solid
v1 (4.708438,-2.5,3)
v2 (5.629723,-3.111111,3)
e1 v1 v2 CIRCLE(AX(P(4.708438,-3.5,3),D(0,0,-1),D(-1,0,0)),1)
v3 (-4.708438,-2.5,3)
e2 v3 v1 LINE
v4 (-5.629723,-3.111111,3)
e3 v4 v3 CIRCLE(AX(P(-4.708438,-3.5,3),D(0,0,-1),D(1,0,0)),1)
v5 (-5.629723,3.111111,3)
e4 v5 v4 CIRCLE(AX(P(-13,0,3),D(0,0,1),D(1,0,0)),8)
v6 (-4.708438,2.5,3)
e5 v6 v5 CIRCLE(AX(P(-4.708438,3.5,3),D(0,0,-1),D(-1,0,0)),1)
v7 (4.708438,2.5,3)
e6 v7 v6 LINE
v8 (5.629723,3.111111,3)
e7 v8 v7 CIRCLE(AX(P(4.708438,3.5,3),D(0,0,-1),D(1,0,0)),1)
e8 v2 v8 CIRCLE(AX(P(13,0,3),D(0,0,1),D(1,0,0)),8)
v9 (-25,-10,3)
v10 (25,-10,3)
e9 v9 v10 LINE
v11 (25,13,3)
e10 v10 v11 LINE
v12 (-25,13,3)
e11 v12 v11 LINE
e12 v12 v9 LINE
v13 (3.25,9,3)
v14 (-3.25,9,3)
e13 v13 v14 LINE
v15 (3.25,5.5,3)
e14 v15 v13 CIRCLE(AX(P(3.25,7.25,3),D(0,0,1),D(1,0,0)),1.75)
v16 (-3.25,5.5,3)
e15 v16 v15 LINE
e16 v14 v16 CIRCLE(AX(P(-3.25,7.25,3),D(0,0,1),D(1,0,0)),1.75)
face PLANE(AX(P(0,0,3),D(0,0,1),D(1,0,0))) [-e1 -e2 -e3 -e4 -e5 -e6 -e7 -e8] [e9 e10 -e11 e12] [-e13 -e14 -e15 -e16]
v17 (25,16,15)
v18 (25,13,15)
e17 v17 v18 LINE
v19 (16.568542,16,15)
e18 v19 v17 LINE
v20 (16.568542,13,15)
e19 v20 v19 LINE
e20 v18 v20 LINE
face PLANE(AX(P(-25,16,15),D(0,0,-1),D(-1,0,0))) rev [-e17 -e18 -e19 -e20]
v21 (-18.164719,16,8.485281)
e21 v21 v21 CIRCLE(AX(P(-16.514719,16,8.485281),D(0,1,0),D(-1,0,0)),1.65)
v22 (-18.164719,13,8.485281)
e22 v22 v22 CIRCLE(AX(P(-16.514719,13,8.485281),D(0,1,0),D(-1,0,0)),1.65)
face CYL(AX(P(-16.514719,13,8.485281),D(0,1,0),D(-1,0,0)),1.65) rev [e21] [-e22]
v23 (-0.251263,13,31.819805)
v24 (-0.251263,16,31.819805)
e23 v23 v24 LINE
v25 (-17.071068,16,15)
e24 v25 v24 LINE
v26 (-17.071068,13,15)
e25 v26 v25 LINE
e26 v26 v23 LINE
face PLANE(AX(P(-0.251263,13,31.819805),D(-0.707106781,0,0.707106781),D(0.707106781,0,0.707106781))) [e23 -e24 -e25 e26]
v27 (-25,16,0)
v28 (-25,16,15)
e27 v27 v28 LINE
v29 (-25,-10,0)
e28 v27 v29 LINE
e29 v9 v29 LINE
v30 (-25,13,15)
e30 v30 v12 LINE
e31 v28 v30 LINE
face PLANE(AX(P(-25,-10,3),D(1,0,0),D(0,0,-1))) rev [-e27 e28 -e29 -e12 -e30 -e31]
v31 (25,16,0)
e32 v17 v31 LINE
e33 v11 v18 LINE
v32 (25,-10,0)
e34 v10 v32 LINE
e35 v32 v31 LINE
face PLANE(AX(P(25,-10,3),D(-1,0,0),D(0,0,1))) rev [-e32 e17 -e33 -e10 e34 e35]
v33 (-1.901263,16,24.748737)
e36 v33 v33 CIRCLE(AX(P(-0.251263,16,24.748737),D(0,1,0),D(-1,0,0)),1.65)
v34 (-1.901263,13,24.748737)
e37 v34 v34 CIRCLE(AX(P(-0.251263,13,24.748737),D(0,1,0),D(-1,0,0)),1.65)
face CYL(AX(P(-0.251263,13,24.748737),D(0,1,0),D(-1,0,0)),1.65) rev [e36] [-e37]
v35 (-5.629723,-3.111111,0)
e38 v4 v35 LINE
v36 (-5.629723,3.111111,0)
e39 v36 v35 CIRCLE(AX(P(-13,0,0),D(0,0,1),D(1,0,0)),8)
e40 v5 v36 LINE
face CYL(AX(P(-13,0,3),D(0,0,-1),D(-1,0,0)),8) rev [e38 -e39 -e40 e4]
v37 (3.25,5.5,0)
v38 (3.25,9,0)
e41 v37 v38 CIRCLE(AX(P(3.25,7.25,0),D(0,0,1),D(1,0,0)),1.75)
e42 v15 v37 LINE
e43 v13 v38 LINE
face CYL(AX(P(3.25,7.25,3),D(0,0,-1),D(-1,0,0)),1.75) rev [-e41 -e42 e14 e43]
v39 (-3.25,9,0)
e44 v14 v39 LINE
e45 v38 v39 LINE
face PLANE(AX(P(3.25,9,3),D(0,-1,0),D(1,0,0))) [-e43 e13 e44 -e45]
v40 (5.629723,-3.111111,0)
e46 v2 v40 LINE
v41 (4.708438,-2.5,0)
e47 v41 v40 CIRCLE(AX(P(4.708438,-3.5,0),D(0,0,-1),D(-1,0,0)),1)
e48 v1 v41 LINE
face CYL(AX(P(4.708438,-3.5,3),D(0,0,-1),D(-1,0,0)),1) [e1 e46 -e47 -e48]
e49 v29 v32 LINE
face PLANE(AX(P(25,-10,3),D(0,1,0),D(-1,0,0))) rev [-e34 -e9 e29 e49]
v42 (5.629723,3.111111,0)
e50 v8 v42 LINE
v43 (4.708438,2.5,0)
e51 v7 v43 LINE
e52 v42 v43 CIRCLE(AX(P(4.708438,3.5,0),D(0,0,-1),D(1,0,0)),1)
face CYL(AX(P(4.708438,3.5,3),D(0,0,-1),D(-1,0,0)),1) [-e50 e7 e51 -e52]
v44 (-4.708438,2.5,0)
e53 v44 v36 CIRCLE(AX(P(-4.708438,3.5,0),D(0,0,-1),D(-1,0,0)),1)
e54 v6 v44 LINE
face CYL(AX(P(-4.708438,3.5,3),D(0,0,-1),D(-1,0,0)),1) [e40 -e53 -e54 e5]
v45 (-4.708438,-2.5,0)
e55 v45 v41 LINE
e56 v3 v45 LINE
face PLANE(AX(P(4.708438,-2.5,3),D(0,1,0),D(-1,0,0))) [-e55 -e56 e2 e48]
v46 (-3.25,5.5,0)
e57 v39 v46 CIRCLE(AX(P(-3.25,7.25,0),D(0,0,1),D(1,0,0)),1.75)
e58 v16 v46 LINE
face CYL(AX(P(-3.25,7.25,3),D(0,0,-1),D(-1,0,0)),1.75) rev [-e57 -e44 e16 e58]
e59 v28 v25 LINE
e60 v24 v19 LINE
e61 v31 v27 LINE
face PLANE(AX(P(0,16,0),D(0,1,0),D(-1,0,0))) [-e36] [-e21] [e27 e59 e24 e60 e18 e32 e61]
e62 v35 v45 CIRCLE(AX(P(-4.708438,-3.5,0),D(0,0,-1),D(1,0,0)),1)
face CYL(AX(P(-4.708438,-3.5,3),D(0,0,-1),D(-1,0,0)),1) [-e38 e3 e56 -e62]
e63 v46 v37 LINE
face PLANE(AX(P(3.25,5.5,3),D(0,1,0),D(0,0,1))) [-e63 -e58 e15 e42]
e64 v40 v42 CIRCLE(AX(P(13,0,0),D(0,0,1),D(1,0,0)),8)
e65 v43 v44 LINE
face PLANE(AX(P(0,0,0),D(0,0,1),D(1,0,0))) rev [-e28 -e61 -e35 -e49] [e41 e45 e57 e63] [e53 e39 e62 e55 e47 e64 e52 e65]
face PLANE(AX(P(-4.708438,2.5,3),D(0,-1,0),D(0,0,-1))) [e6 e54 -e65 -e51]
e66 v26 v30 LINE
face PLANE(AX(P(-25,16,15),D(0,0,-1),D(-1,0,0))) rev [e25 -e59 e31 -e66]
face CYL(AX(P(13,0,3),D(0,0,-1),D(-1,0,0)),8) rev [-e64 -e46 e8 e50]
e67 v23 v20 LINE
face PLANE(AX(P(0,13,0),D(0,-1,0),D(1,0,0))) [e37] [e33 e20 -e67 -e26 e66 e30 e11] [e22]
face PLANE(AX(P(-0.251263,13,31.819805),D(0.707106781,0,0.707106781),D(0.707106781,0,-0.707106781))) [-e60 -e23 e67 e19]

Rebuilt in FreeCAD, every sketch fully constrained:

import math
import FreeCAD as App
import Part
import Sketcher
Q = App.Units.Quantity


def add_polygon(sketch, points):
    """Adds a closed chain of lines whose ends are joined by coincident constraints."""
    first, n = sketch.GeometryCount, len(points)
    for a, b in zip(points, points[1:] + points[:1]):
        sketch.addGeometry(Part.LineSegment(App.Vector(*a, 0), App.Vector(*b, 0)), False)
    for i in range(n):
        sketch.addConstraint(Sketcher.Constraint("Coincident", first + i, 2, first + (i + 1) % n, 1))

doc = App.newDocument("Part")
body = doc.addObject("PartDesign::Body", "Body")

# Sketch on XY plane
sketch1 = body.newObject("Sketcher::SketchObject", "Sketch")
sketch1.AttachmentSupport = (doc.getObject("XY_Plane"), [""])
sketch1.MapMode = "FlatFace"
add_polygon(sketch1, [(-25, 10), (-25, -10), (25, -10), (25, 10)])  # lines 0-3
sketch1.addGeometry(Part.ArcOfCircle(Part.Circle(App.Vector(-4.7, 3.5, 0), App.Vector(0, 0, 1), 1), math.radians(-157), math.radians(-90)), False)  # 4
sketch1.addGeometry(Part.LineSegment(App.Vector(-4.7, 2.5, 0), App.Vector(4.7, 2.5, 0)), False)  # 5
sketch1.addGeometry(Part.ArcOfCircle(Part.Circle(App.Vector(4.7, 3.5, 0), App.Vector(0, 0, 1), 1), math.radians(-90), math.radians(-23)), False)  # 6
sketch1.addGeometry(Part.ArcOfCircle(Part.Circle(App.Vector(13, 0, 0), App.Vector(0, 0, 1), 8), math.radians(-157), math.radians(157)), False)  # 7
sketch1.addGeometry(Part.ArcOfCircle(Part.Circle(App.Vector(4.7, -3.5, 0), App.Vector(0, 0, 1), 1), math.radians(23), math.radians(90)), False)  # 8
sketch1.addGeometry(Part.LineSegment(App.Vector(4.7, -2.5, 0), App.Vector(-4.7, -2.5, 0)), False)  # 9
sketch1.addGeometry(Part.ArcOfCircle(Part.Circle(App.Vector(-4.7, -3.5, 0), App.Vector(0, 0, 1), 1), math.radians(90), math.radians(157)), False)  # 10
sketch1.addGeometry(Part.ArcOfCircle(Part.Circle(App.Vector(-13, 0, 0), App.Vector(0, 0, 1), 8), math.radians(23), math.radians(337)), False)  # 11
sketch1.addGeometry(Part.ArcOfCircle(Part.Circle(App.Vector(3.2, 7.2, 0), App.Vector(0, 0, 1), 1.8), math.radians(-90), math.radians(90)), False)  # 12
sketch1.addGeometry(Part.LineSegment(App.Vector(3.2, 5.5, 0), App.Vector(-3.2, 5.5, 0)), False)  # 13
sketch1.addGeometry(Part.ArcOfCircle(Part.Circle(App.Vector(-3.2, 7.2, 0), App.Vector(0, 0, 1), 1.8), math.radians(90), math.radians(270)), False)  # 14
sketch1.addGeometry(Part.LineSegment(App.Vector(-3.2, 9, 0), App.Vector(3.2, 9, 0)), False)  # 15
sketch1.addConstraint(Sketcher.Constraint("Tangent", 4, 2, 5, 1))
sketch1.addConstraint(Sketcher.Constraint("Tangent", 5, 2, 6, 1))
sketch1.addConstraint(Sketcher.Constraint("Tangent", 6, 2, 7, 2))
sketch1.addConstraint(Sketcher.Constraint("Tangent", 7, 1, 8, 1))
sketch1.addConstraint(Sketcher.Constraint("Tangent", 8, 2, 9, 1))
sketch1.addConstraint(Sketcher.Constraint("Tangent", 9, 2, 10, 1))
sketch1.addConstraint(Sketcher.Constraint("Tangent", 10, 2, 11, 2))
sketch1.addConstraint(Sketcher.Constraint("Tangent", 11, 1, 4, 1))
sketch1.addConstraint(Sketcher.Constraint("Tangent", 12, 1, 13, 1))
sketch1.addConstraint(Sketcher.Constraint("Tangent", 13, 2, 14, 2))
sketch1.addConstraint(Sketcher.Constraint("Tangent", 14, 1, 15, 1))
sketch1.addConstraint(Sketcher.Constraint("Tangent", 15, 2, 12, 2))
sketch1.addConstraint(Sketcher.Constraint("Vertical", 0))
sketch1.addConstraint(Sketcher.Constraint("Horizontal", 1))
sketch1.addConstraint(Sketcher.Constraint("Vertical", 2))
sketch1.addConstraint(Sketcher.Constraint("Horizontal", 3))
sketch1.addConstraint(Sketcher.Constraint("Horizontal", 5))
sketch1.addConstraint(Sketcher.Constraint("Horizontal", 9))
sketch1.addConstraint(Sketcher.Constraint("Horizontal", 13))
sketch1.addConstraint(Sketcher.Constraint("Horizontal", 15))
sketch1.addConstraint(Sketcher.Constraint("Equal", 4, 6))
sketch1.addConstraint(Sketcher.Constraint("Equal", 6, 8))
sketch1.addConstraint(Sketcher.Constraint("Equal", 8, 10))
sketch1.addConstraint(Sketcher.Constraint("Equal", 7, 11))
sketch1.addConstraint(Sketcher.Constraint("Symmetric", 4, 3, 8, 3, -1, 1))
sketch1.addConstraint(Sketcher.Constraint("Symmetric", 0, 2, 2, 2, -1, 1))
sketch1.addConstraint(Sketcher.Constraint("Symmetric", 7, 3, 11, 3, -2))
sketch1.addConstraint(Sketcher.Constraint("Radius", 4, Q("1 mm")))
sketch1.addConstraint(Sketcher.Constraint("Radius", 7, Q("8 mm")))
sketch1.addConstraint(Sketcher.Constraint("DistanceX", 1, 1, 1, 2, Q("50 mm")))
sketch1.addConstraint(Sketcher.Constraint("DistanceY", 0, 2, 0, 1, Q("20 mm")))
sketch1.addConstraint(Sketcher.Constraint("Radius", 12, Q("1.75 mm")))
sketch1.addConstraint(Sketcher.Constraint("DistanceX", 13, 2, 13, 1, Q("6.5 mm")))
sketch1.addConstraint(Sketcher.Constraint("DistanceX", -1, 1, 7, 3, Q("13 mm")))
sketch1.addConstraint(Sketcher.Constraint("DistanceY", -1, 1, 14, 1, Q("9 mm")))
sketch1.addConstraint(Sketcher.Constraint("DistanceY", 8, 3, 6, 3, Q("7 mm")))
sketch1.addConstraint(Sketcher.Constraint("DistanceX", -1, 1, 12, 3, Q("3.25 mm")))
pad1 = body.newObject("PartDesign::Pad", "Pad")
pad1.Profile = sketch1
pad1.Length = 3

# Sketch on XZ plane
sketch2 = body.newObject("Sketcher::SketchObject", "Sketch001")
sketch2.AttachmentSupport = (doc.getObject("XZ_Plane"), [""])
sketch2.MapMode = "FlatFace"
sketch2.AttachmentOffset = App.Placement(App.Vector(0, 0, -10), App.Rotation())
add_polygon(sketch2, [(-25, 0), (-25, 15), (25, 15), (25, 0)])  # lines 0-3
sketch2.addConstraint(Sketcher.Constraint("Vertical", 0))
sketch2.addConstraint(Sketcher.Constraint("Horizontal", 1))
sketch2.addConstraint(Sketcher.Constraint("Vertical", 2))
sketch2.addConstraint(Sketcher.Constraint("Horizontal", 3))
sketch2.addConstraint(Sketcher.Constraint("Symmetric", 2, 2, 3, 2, -1, 1))
sketch2.addConstraint(Sketcher.Constraint("DistanceX", 1, 1, 1, 2, Q("50 mm")))
sketch2.addConstraint(Sketcher.Constraint("DistanceY", 0, 1, 0, 2, Q("15 mm")))
pad2 = body.newObject("PartDesign::Pad", "Pad001")
pad2.Profile = sketch2
pad2.Length = 6
pad2.Reversed = True

# Sketch on XZ plane
sketch3 = body.newObject("Sketcher::SketchObject", "Sketch002")
sketch3.AttachmentSupport = (doc.getObject("XZ_Plane"), [""])
sketch3.MapMode = "FlatFace"
sketch3.AttachmentOffset = App.Placement(App.Vector(0, 0, -10), App.Rotation())
add_polygon(sketch3, [(-25, 15), (-25, 3), (25, 3), (25, 15)])  # lines 0-3
sketch3.addConstraint(Sketcher.Constraint("Vertical", 0))
sketch3.addConstraint(Sketcher.Constraint("Horizontal", 1))
sketch3.addConstraint(Sketcher.Constraint("Vertical", 2))
sketch3.addConstraint(Sketcher.Constraint("Horizontal", 3))
sketch3.addConstraint(Sketcher.Constraint("DistanceX", 1, 1, 1, 2, Q("50 mm")))
sketch3.addConstraint(Sketcher.Constraint("DistanceY", 0, 2, 0, 1, Q("12 mm")))
sketch3.addConstraint(Sketcher.Constraint("DistanceX", 0, 2, -1, 1, Q("25 mm")))
sketch3.addConstraint(Sketcher.Constraint("DistanceY", -1, 1, 0, 2, Q("3 mm")))
pocket1 = body.newObject("PartDesign::Pocket", "Pocket")
pocket1.Profile = sketch3
pocket1.Length = 3

# Sketch on XZ plane
sketch4 = body.newObject("Sketcher::SketchObject", "Sketch003")
sketch4.AttachmentSupport = (doc.getObject("XZ_Plane"), [""])
sketch4.MapMode = "FlatFace"
sketch4.AttachmentOffset = App.Placement(App.Vector(0, 0, -16), App.Rotation())
add_polygon(sketch4, [(-17.1, 15), (-0.3, 31.8), (16.6, 15)])  # lines 0-2
sketch4.addGeometry(Part.Circle(App.Vector(-0.3, 24.7, 0), App.Vector(0, 0, 1), 1.6), False)  # 3
sketch4.addConstraint(Sketcher.Constraint("Horizontal", 2))
sketch4.addConstraint(Sketcher.Constraint("Perpendicular", 0, 1))
sketch4.addConstraint(Sketcher.Constraint("Vertical", 3, 3, 0, 2))
sketch4.addConstraint(Sketcher.Constraint("Equal", 0, 1))
sketch4.addConstraint(Sketcher.Constraint("Diameter", 3, Q("3.3 mm")))
sketch4.addConstraint(Sketcher.Constraint("DistanceY", -1, 1, 1, 2, Q("15 mm")))
sketch4.addConstraint(Sketcher.Constraint("DistanceX", 2, 2, 2, 1, Q("33.63961 mm")))
sketch4.addConstraint(Sketcher.Constraint("DistanceX", 3, 3, -1, 1, Q("0.251263 mm")))
sketch4.addConstraint(Sketcher.Constraint("DistanceY", -1, 1, 3, 3, Q("24.748737 mm")))
pad3 = body.newObject("PartDesign::Pad", "Pad002")
pad3.Profile = sketch4
pad3.Length = 3

# Sketch on XZ plane
sketch5 = body.newObject("Sketcher::SketchObject", "Sketch004")
sketch5.AttachmentSupport = (doc.getObject("XZ_Plane"), [""])
sketch5.MapMode = "FlatFace"
sketch5.AttachmentOffset = App.Placement(App.Vector(0, 0, -16), App.Rotation())
sketch5.addGeometry(Part.Circle(App.Vector(-16.5, 8.5, 0), App.Vector(0, 0, 1), 1.6), False)
sketch5.addConstraint(Sketcher.Constraint("Diameter", 0, Q("3.3 mm")))
sketch5.addConstraint(Sketcher.Constraint("DistanceX", 0, 3, -1, 1, Q("16.514719 mm")))
sketch5.addConstraint(Sketcher.Constraint("DistanceY", -1, 1, 0, 3, Q("8.485281 mm")))
pocket2 = body.newObject("PartDesign::Pocket", "Pocket001")
pocket2.Profile = sketch5
pocket2.Length = 3
pocket2.Reversed = True

doc.recompute()
